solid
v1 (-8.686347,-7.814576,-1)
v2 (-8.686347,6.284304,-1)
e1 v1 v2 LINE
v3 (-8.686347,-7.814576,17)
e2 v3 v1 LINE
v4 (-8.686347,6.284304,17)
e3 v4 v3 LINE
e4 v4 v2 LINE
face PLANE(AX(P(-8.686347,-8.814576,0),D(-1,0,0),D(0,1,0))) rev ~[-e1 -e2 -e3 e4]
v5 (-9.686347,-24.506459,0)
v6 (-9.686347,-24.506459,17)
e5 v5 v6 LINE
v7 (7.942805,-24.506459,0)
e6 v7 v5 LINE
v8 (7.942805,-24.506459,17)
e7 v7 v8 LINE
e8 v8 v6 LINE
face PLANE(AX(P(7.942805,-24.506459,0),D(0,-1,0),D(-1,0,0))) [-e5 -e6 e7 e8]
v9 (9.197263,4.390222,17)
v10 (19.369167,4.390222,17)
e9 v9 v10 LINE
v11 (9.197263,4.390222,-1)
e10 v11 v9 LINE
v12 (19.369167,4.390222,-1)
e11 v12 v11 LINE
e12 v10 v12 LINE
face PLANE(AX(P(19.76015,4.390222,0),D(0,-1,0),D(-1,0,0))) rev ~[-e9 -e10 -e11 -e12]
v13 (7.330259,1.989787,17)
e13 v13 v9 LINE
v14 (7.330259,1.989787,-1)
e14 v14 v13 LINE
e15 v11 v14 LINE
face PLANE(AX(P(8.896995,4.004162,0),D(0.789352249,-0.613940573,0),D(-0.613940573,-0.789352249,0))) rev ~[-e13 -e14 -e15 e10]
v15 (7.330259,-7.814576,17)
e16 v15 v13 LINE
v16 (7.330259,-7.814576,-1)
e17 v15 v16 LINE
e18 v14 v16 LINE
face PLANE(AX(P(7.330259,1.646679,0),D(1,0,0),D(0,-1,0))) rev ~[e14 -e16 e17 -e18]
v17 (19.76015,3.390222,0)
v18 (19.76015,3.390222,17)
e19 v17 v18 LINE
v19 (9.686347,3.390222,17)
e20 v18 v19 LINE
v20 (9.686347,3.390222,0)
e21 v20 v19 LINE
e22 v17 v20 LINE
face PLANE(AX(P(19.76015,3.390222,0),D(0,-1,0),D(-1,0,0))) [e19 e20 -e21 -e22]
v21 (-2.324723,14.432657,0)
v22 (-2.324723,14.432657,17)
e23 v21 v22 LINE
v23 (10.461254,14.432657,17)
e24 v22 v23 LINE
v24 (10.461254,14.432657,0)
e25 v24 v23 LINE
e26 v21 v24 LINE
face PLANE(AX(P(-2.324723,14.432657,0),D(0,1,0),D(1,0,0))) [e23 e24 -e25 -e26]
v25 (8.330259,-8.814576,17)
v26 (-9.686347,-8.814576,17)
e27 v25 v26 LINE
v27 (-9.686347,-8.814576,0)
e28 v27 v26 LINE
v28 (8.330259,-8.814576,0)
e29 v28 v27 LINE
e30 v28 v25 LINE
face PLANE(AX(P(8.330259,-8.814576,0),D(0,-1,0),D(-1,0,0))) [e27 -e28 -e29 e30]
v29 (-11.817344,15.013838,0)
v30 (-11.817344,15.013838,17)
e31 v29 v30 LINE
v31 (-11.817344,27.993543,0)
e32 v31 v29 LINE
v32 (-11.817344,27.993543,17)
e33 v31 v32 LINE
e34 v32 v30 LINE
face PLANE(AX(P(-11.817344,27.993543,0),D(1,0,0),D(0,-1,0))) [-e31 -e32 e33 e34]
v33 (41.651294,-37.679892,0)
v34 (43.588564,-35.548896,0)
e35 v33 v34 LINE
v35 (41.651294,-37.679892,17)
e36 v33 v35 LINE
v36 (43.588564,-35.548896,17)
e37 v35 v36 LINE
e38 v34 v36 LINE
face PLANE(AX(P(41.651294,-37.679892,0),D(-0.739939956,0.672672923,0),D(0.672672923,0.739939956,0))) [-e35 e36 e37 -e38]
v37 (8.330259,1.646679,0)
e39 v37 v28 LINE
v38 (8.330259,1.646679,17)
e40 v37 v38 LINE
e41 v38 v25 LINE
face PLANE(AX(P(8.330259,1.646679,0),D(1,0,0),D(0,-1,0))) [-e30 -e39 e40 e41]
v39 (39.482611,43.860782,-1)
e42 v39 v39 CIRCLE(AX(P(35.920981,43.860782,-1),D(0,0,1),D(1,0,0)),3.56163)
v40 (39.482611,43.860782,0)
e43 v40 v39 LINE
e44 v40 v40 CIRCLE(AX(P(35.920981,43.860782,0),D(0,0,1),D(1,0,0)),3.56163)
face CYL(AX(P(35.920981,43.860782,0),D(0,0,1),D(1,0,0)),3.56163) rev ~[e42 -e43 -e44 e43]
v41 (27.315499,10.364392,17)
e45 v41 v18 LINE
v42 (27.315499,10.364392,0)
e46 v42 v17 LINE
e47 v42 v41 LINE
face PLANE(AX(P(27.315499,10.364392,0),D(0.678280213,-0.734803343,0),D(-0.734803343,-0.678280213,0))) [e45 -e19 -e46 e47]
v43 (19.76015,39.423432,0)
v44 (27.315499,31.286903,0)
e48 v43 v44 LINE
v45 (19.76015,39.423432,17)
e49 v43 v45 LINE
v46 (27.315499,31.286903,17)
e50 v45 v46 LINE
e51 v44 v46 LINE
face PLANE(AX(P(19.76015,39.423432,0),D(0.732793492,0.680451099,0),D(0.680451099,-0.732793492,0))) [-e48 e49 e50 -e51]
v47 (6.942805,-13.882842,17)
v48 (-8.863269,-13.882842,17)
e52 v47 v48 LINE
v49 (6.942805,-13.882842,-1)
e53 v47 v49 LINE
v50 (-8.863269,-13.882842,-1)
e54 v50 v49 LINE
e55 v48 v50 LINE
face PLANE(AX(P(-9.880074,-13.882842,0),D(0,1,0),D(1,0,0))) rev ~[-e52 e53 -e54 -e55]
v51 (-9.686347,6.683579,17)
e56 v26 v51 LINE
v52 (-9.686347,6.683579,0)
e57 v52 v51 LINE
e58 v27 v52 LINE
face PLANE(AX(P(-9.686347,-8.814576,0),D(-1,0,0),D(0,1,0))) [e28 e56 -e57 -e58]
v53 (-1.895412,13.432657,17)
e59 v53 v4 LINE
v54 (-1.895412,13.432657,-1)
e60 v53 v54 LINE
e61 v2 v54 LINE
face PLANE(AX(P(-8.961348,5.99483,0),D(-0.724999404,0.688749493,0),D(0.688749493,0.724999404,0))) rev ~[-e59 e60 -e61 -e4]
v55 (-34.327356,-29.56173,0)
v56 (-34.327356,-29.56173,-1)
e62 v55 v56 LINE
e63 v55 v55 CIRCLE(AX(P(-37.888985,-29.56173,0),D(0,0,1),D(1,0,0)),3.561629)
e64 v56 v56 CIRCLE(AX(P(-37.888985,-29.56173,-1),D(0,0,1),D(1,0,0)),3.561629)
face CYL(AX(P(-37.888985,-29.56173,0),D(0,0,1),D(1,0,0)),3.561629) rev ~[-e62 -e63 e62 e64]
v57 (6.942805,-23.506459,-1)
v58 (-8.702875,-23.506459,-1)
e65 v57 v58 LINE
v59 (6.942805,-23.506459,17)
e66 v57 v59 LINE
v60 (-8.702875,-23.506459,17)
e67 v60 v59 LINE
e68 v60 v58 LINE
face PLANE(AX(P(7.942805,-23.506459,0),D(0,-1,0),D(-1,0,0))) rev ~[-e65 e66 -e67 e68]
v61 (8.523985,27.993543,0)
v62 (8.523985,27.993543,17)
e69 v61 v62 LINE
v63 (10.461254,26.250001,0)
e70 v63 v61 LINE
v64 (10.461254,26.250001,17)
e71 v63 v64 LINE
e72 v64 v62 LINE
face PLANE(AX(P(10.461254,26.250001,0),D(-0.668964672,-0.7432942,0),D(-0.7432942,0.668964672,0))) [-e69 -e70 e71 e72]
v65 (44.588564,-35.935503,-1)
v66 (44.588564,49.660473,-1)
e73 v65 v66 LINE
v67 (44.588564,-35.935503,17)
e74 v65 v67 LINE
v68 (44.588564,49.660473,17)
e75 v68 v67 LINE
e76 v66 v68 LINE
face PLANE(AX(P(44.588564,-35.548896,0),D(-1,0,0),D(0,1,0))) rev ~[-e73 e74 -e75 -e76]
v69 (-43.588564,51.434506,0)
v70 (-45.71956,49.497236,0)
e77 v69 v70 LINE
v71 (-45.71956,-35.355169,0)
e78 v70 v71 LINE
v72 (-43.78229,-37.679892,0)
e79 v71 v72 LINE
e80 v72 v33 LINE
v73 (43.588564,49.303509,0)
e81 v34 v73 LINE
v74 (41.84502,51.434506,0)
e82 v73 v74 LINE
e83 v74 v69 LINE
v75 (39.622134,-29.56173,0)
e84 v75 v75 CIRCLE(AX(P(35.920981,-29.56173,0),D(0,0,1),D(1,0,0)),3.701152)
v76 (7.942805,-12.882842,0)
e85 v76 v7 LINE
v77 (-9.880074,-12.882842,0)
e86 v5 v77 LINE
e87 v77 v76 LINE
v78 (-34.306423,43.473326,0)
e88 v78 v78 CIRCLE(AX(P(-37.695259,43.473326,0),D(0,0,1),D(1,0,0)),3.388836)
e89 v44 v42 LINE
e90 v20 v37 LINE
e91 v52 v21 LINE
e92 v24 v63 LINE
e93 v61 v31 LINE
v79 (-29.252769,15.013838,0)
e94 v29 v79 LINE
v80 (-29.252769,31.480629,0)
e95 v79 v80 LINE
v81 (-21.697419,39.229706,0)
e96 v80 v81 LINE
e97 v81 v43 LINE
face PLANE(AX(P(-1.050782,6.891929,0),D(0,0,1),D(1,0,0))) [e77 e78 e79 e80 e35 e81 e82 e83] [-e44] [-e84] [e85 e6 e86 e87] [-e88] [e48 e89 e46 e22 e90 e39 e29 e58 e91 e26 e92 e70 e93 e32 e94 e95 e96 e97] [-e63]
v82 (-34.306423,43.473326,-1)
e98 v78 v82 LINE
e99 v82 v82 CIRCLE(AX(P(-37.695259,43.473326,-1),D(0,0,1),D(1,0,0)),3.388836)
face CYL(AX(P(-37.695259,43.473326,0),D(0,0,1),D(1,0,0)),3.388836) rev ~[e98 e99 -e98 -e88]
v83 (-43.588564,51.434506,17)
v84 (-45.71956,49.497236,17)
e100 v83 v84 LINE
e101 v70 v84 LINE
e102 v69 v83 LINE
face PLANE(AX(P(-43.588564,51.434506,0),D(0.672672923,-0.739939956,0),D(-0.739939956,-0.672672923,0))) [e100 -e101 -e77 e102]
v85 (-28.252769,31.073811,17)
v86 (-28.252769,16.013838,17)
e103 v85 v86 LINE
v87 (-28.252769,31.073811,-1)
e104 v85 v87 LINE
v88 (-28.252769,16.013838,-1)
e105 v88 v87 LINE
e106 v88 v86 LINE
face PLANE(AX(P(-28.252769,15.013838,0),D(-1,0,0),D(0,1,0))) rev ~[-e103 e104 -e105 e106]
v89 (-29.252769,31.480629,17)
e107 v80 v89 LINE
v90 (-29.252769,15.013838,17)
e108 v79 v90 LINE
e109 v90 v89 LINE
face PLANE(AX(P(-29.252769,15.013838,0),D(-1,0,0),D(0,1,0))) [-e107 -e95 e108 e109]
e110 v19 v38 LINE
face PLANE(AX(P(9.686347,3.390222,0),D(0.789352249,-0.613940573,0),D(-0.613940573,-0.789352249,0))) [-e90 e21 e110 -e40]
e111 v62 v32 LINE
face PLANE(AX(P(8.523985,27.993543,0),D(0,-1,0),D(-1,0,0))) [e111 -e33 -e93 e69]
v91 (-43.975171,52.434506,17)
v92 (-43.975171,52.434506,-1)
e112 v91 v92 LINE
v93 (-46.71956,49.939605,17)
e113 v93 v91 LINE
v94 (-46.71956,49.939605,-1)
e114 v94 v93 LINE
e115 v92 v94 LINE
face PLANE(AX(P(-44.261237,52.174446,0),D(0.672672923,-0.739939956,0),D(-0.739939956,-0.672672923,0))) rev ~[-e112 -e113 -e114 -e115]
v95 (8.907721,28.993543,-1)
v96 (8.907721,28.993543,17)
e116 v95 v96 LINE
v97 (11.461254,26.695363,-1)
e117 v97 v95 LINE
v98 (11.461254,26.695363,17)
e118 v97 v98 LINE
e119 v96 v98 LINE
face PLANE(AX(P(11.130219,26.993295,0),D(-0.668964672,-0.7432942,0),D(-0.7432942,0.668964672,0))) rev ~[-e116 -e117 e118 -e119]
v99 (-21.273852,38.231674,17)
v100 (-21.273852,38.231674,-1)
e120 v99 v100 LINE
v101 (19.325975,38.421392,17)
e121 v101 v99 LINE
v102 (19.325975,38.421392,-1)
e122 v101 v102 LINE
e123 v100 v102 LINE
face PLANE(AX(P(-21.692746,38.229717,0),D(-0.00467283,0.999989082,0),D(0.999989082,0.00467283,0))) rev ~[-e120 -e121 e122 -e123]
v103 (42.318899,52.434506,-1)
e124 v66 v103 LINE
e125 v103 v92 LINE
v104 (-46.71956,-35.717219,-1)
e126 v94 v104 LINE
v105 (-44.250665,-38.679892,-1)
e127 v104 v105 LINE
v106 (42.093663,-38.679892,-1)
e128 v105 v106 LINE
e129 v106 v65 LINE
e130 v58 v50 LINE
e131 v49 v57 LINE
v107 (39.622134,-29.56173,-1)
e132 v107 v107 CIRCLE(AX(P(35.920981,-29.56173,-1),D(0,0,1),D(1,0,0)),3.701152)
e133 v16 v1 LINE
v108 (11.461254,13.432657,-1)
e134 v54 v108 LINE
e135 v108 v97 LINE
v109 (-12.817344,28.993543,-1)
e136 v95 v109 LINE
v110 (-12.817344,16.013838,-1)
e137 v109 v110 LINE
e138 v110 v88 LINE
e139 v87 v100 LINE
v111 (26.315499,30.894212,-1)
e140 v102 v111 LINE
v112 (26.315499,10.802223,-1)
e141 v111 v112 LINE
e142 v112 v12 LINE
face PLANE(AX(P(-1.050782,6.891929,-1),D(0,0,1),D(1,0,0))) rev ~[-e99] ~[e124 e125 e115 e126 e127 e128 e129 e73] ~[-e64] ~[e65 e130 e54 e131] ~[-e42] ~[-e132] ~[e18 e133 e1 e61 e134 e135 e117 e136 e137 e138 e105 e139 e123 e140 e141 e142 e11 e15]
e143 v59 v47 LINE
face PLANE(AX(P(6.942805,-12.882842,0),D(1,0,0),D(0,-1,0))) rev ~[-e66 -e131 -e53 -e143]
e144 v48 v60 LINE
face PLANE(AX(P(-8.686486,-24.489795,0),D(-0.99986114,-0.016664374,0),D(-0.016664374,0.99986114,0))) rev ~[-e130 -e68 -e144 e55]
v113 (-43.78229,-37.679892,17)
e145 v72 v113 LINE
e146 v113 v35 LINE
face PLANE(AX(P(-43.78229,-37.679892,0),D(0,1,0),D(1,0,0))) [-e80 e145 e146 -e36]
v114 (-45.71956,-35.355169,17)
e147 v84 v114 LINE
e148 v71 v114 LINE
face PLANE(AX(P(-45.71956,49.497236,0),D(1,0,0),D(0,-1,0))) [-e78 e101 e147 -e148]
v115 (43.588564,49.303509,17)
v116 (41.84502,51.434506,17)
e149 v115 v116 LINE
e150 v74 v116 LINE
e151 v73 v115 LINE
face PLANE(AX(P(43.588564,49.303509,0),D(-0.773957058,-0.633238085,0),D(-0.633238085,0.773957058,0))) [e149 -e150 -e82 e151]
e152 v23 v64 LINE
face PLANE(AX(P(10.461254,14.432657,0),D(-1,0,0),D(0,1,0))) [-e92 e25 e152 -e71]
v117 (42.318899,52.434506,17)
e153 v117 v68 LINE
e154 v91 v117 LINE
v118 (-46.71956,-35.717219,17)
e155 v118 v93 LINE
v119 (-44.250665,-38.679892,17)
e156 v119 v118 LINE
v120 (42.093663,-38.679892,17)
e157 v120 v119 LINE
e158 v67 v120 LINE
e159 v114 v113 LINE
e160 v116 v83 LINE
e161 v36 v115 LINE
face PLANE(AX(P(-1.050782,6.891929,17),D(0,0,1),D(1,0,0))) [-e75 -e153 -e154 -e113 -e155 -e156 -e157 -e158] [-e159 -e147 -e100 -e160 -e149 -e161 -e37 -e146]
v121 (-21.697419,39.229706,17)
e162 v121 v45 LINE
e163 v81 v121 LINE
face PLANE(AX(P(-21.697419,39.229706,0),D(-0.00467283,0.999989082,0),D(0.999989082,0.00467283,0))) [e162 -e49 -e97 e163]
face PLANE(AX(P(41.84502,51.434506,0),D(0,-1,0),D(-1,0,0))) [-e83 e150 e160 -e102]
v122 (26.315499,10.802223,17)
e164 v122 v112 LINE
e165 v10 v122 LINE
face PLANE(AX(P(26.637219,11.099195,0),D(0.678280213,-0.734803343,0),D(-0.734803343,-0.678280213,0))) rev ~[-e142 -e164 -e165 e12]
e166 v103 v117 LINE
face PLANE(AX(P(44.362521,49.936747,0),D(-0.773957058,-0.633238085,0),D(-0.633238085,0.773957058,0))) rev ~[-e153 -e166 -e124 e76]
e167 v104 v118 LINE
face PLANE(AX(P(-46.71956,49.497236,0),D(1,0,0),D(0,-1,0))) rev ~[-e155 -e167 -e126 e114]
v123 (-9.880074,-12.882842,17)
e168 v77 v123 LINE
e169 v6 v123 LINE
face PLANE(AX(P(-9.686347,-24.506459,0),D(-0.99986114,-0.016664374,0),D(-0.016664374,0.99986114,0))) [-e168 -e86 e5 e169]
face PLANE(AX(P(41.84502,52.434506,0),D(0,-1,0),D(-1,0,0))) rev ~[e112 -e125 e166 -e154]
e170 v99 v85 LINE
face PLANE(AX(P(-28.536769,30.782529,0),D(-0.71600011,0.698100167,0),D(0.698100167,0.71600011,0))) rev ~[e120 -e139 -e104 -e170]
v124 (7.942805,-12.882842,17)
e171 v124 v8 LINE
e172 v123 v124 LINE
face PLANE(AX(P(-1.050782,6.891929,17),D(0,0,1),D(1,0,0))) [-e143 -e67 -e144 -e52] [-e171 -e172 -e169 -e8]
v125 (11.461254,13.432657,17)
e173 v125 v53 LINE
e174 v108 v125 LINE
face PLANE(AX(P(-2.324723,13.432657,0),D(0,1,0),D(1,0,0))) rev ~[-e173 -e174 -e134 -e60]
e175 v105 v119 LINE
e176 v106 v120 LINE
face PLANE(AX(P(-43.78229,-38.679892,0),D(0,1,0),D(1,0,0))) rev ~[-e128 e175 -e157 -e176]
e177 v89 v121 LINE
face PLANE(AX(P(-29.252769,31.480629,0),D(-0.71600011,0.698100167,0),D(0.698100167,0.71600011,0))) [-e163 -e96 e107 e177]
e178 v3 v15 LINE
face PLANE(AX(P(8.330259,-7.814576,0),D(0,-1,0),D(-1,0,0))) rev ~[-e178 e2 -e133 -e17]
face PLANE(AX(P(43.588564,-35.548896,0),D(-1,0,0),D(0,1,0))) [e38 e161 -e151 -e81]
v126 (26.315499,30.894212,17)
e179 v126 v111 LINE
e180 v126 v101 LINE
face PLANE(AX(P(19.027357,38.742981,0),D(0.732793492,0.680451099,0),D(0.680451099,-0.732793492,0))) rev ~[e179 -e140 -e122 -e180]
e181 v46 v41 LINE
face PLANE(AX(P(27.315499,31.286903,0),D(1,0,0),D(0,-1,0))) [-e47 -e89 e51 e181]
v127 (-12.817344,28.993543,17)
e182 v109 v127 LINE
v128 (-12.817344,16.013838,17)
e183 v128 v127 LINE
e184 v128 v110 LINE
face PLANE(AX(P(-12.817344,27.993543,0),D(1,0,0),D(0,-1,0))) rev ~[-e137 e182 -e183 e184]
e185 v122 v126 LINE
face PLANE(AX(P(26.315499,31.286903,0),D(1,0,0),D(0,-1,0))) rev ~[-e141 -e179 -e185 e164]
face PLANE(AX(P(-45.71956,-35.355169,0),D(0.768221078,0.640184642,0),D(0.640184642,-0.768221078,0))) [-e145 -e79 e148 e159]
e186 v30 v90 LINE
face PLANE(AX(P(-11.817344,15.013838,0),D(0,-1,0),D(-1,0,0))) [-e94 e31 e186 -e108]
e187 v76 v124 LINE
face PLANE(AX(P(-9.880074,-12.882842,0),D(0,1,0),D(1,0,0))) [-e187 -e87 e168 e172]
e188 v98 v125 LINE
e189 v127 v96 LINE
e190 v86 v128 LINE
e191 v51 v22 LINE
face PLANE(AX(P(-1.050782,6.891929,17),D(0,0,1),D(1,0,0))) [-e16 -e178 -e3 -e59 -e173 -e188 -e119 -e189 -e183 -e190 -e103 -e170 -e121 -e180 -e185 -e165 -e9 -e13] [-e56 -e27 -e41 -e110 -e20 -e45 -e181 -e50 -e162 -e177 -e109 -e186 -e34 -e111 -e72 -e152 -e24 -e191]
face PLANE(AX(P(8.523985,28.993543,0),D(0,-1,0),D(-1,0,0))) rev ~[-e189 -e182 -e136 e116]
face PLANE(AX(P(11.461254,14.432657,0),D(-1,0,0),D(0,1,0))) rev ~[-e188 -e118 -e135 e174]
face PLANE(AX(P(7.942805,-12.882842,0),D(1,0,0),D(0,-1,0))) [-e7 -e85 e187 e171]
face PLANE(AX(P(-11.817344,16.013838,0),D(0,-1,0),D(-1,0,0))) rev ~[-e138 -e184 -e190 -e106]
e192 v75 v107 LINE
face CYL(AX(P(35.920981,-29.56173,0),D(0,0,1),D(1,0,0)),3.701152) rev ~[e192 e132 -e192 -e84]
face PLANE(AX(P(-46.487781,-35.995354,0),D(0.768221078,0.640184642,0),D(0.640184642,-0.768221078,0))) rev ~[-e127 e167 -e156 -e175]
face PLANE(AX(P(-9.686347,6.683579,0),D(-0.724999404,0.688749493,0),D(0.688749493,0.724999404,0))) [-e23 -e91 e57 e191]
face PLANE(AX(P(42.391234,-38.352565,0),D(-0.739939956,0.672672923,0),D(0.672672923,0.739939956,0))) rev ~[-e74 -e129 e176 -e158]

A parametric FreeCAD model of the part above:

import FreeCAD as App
import Part
import Sketcher
from FreeCAD import Vector


def faces_at(feature, points):
    """Names of the faces that lie closest to the given points."""
    faces = feature.Shape.Faces
    near = lambda p: min(range(len(faces)), key=lambda i: faces[i].distToShape(Part.Vertex(*p))[0])
    return sorted({f"Face{near(p) + 1}" for p in points})


def add_polygon(sketch, points):
    """Adds a closed chain of lines whose ends are joined by coincident constraints."""
    first, n = sketch.GeometryCount, len(points)
    for a, b in zip(points, points[1:] + points[:1]):
        sketch.addGeometry(Part.LineSegment(App.Vector(*a, 0), App.Vector(*b, 0)), False)
    for i in range(n):
        sketch.addConstraint(Sketcher.Constraint("Coincident", first + i, 2, first + (i + 1) % n, 1))

doc = App.newDocument("Part")
params = doc.addObject("Spreadsheet::Sheet", "Params")
for row, (alias, value) in enumerate([
    ("pad1_length", "17 mm"),
    ("thickness_wall", "1 mm"),
    ("pocket1_length", "25 mm"),
], start=1):
    params.set(f"A{row}", alias)
    params.set(f"B{row}", "=" + value)
    params.setAlias(f"B{row}", alias)

body = doc.addObject("PartDesign::Body", "Body")

# Sketch on XY plane
sketch1 = body.newObject("Sketcher::SketchObject", "Sketch")
sketch1.AttachmentSupport = (doc.getObject("XY_Plane"), [""])
sketch1.MapMode = "FlatFace"
add_polygon(sketch1, [(-43.588564, 51.434506), (-45.71956, 49.497236), (-45.71956, -35.355169), (-43.78229, -37.679892), (41.651294, -37.679892), (43.588564, -35.548896), (43.588564, 49.303509), (41.84502, 51.434506)])  # lines 0-7
add_polygon(sketch1, [(7.942805, -24.506459), (-9.686347, -24.506459), (-9.880074, -12.882842), (7.942805, -12.882842)])  # lines 8-11
add_polygon(sketch1, [(-29.252769, 15.013838), (-29.252769, 31.480629), (-21.697419, 39.229706), (19.76015, 39.423432), (27.315499, 31.286903), (27.315499, 10.364392), (19.76015, 3.390222), (9.686347, 3.390222), (8.330259, 1.646679), (8.330259, -8.814576), (-9.686347, -8.814576), (-9.686347, 6.683579), (-2.324723, 14.432657), (10.461254, 14.432657), (10.461254, 26.250001), (8.523985, 27.993543), (-11.817344, 27.993543), (-11.817344, 15.013838)])  # lines 12-29
sketch1.addConstraint([
    Sketcher.Constraint("Vertical", 1),
    Sketcher.Constraint("Horizontal", 3),
    Sketcher.Constraint("Vertical", 5),
    Sketcher.Constraint("Horizontal", 7),
    Sketcher.Constraint("Horizontal", 8),
    Sketcher.Constraint("Horizontal", 10),
    Sketcher.Constraint("Vertical", 11),
    Sketcher.Constraint("Vertical", 12),
    Sketcher.Constraint("Vertical", 16),
    Sketcher.Constraint("Horizontal", 18),
    Sketcher.Constraint("Vertical", 20),
    Sketcher.Constraint("Horizontal", 21),
    Sketcher.Constraint("Vertical", 22),
    Sketcher.Constraint("Horizontal", 24),
    Sketcher.Constraint("Vertical", 25),
    Sketcher.Constraint("Horizontal", 27),
    Sketcher.Constraint("Vertical", 28),
    Sketcher.Constraint("Horizontal", 29),
    Sketcher.Constraint("Vertical", 14, 2, 17, 2),
    Sketcher.Constraint("Vertical", 8, 2, 21, 2),
    Sketcher.Constraint("Equal", 3, 7),
    Sketcher.Constraint("Equal", 1, 5),
    Sketcher.Constraint("Equal", 0, 4),
    Sketcher.Constraint("DistanceY", -1, 1, 25, 2, 26.250001),
    Sketcher.Constraint("DistanceX", 10, 1, 10, 2, 17.822879),
    Sketcher.Constraint("DistanceX", 27, 2, 27, 1, 20.341328),
    Sketcher.Constraint("DistanceY", 12, 1, 12, 2, 16.466791),
    Sketcher.Constraint("DistanceY", 16, 2, 16, 1, 20.922511),
    Sketcher.Constraint("DistanceX", -1, 1, 15, 2, 27.315499),
    Sketcher.Constraint("DistanceY", 3, 2, 5, 2, 86.983401),
    Sketcher.Constraint("DistanceY", 4, 2, 6, 2, 86.983401),
    Sketcher.Constraint("DistanceY", 13, 2, 7, 2, 12.2048),
    Sketcher.Constraint("DistanceY", 19, 2, 22, 2, 5.0369),
    Sketcher.Constraint("DistanceY", 25, 2, 15, 2, 5.036902),
    Sketcher.Constraint("Distance", 0, 2.879959),
    Sketcher.Constraint("Distance", 2, 3.026112),
    Sketcher.Constraint("Distance", 6, 2.753378),
    Sketcher.Constraint("Distance", 9, 11.625232),
    Sketcher.Constraint("Distance", 13, 10.822731),
    Sketcher.Constraint("Distance", 14, 41.458022),
    Sketcher.Constraint("Distance", 15, 11.103441),
    Sketcher.Constraint("Distance", 23, 10.688391),
    Sketcher.Constraint("Distance", 26, 2.606329),
    Sketcher.Constraint("DistanceX", 3, 1, 3, 2, 85.433584),
    Sketcher.Constraint("DistanceX", 8, 2, 8, 1, 17.629152),
    Sketcher.Constraint("DistanceX", 18, 2, 18, 1, 10.073803),
    Sketcher.Constraint("DistanceX", 21, 2, 21, 1, 18.016606),
    Sketcher.Constraint("DistanceX", 24, 1, 24, 2, 12.785977),
    Sketcher.Constraint("DistanceX", 29, 2, 29, 1, 17.435426),
    Sketcher.Constraint("DistanceY", 1, 2, 1, 1, 84.852405),
    Sketcher.Constraint("DistanceY", 20, 2, 20, 1, 10.461255),
    Sketcher.Constraint("DistanceY", 25, 1, 25, 2, 11.817344),
    Sketcher.Constraint("DistanceY", 28, 2, 28, 1, 12.979705),
    Sketcher.Constraint("DistanceX", 0, 2, -1, 1, 45.71956),
    Sketcher.Constraint("DistanceY", 1, 2, -1, 1, 35.355169),
    Sketcher.Constraint("DistanceY", 8, 2, -1, 1, 24.506459),
    Sketcher.Constraint("DistanceX", 12, 2, -1, 1, 29.252769),
    Sketcher.Constraint("DistanceY", -1, 1, 12, 2, 31.480629),
    Sketcher.Constraint("DistanceY", -1, 1, 17, 2, 3.390222),
    Sketcher.Constraint("DistanceX", -1, 1, 19, 2, 8.330259),
])
pad1 = body.newObject("PartDesign::Pad", "Pad")
pad1.Profile = sketch1
pad1.setExpression("Length", "Params.pad1_length")
doc.recompute()

thickness = body.newObject("PartDesign::Thickness", "Thickness")
thickness.Base = (pad1, faces_at(pad1, [(-18.927, -10.946, 17)]))
thickness.setExpression("Value", "Params.thickness_wall")
thickness.Reversed = False
thickness.Join = "Intersection"

# Sketch on XY plane
sketch2 = body.newObject("Sketcher::SketchObject", "Sketch001")
sketch2.AttachmentSupport = (doc.getObject("XY_Plane"), [""])
sketch2.MapMode = "FlatFace"
sketch2.addGeometry([
    Part.Circle(Vector(35.920981, 43.860782, 0), Vector(0, 0, 1), 3.56163),
    Part.Circle(Vector(-37.695259, 43.473326, 0), Vector(0, 0, 1), 3.388836),
    Part.Circle(Vector(35.920981, -29.56173, 0), Vector(0, 0, 1), 3.701152),
    Part.Circle(Vector(-37.888985, -29.56173, 0), Vector(0, 0, 1), 3.561629),
], False)
sketch2.addConstraint([
    Sketcher.Constraint("Equal", 0, 3),
    Sketcher.Constraint("Horizontal", 2, 3, 3, 3),
    Sketcher.Constraint("Vertical", 0, 3, 2, 3),
    Sketcher.Constraint("Diameter", 0, 7.12326),
    Sketcher.Constraint("Diameter", 1, 6.777672),
    Sketcher.Constraint("Diameter", 2, 7.402305),
    Sketcher.Constraint("DistanceX", -1, 1, 0, 3, 35.920981),
    Sketcher.Constraint("DistanceY", -1, 1, 0, 3, 43.860782),
    Sketcher.Constraint("DistanceX", 1, 3, -1, 1, 37.695259),
    Sketcher.Constraint("DistanceY", 2, 3, -1, 1, 29.56173),
    Sketcher.Constraint("DistanceY", -1, 1, 1, 3, 43.473326),
    Sketcher.Constraint("DistanceX", 3, 3, -1, 1, 37.888985),
])
pocket1 = body.newObject("PartDesign::Pocket", "Pocket")
pocket1.Profile = sketch2
pocket1.setExpression("Length", "Params.pocket1_length")

doc.recompute()
